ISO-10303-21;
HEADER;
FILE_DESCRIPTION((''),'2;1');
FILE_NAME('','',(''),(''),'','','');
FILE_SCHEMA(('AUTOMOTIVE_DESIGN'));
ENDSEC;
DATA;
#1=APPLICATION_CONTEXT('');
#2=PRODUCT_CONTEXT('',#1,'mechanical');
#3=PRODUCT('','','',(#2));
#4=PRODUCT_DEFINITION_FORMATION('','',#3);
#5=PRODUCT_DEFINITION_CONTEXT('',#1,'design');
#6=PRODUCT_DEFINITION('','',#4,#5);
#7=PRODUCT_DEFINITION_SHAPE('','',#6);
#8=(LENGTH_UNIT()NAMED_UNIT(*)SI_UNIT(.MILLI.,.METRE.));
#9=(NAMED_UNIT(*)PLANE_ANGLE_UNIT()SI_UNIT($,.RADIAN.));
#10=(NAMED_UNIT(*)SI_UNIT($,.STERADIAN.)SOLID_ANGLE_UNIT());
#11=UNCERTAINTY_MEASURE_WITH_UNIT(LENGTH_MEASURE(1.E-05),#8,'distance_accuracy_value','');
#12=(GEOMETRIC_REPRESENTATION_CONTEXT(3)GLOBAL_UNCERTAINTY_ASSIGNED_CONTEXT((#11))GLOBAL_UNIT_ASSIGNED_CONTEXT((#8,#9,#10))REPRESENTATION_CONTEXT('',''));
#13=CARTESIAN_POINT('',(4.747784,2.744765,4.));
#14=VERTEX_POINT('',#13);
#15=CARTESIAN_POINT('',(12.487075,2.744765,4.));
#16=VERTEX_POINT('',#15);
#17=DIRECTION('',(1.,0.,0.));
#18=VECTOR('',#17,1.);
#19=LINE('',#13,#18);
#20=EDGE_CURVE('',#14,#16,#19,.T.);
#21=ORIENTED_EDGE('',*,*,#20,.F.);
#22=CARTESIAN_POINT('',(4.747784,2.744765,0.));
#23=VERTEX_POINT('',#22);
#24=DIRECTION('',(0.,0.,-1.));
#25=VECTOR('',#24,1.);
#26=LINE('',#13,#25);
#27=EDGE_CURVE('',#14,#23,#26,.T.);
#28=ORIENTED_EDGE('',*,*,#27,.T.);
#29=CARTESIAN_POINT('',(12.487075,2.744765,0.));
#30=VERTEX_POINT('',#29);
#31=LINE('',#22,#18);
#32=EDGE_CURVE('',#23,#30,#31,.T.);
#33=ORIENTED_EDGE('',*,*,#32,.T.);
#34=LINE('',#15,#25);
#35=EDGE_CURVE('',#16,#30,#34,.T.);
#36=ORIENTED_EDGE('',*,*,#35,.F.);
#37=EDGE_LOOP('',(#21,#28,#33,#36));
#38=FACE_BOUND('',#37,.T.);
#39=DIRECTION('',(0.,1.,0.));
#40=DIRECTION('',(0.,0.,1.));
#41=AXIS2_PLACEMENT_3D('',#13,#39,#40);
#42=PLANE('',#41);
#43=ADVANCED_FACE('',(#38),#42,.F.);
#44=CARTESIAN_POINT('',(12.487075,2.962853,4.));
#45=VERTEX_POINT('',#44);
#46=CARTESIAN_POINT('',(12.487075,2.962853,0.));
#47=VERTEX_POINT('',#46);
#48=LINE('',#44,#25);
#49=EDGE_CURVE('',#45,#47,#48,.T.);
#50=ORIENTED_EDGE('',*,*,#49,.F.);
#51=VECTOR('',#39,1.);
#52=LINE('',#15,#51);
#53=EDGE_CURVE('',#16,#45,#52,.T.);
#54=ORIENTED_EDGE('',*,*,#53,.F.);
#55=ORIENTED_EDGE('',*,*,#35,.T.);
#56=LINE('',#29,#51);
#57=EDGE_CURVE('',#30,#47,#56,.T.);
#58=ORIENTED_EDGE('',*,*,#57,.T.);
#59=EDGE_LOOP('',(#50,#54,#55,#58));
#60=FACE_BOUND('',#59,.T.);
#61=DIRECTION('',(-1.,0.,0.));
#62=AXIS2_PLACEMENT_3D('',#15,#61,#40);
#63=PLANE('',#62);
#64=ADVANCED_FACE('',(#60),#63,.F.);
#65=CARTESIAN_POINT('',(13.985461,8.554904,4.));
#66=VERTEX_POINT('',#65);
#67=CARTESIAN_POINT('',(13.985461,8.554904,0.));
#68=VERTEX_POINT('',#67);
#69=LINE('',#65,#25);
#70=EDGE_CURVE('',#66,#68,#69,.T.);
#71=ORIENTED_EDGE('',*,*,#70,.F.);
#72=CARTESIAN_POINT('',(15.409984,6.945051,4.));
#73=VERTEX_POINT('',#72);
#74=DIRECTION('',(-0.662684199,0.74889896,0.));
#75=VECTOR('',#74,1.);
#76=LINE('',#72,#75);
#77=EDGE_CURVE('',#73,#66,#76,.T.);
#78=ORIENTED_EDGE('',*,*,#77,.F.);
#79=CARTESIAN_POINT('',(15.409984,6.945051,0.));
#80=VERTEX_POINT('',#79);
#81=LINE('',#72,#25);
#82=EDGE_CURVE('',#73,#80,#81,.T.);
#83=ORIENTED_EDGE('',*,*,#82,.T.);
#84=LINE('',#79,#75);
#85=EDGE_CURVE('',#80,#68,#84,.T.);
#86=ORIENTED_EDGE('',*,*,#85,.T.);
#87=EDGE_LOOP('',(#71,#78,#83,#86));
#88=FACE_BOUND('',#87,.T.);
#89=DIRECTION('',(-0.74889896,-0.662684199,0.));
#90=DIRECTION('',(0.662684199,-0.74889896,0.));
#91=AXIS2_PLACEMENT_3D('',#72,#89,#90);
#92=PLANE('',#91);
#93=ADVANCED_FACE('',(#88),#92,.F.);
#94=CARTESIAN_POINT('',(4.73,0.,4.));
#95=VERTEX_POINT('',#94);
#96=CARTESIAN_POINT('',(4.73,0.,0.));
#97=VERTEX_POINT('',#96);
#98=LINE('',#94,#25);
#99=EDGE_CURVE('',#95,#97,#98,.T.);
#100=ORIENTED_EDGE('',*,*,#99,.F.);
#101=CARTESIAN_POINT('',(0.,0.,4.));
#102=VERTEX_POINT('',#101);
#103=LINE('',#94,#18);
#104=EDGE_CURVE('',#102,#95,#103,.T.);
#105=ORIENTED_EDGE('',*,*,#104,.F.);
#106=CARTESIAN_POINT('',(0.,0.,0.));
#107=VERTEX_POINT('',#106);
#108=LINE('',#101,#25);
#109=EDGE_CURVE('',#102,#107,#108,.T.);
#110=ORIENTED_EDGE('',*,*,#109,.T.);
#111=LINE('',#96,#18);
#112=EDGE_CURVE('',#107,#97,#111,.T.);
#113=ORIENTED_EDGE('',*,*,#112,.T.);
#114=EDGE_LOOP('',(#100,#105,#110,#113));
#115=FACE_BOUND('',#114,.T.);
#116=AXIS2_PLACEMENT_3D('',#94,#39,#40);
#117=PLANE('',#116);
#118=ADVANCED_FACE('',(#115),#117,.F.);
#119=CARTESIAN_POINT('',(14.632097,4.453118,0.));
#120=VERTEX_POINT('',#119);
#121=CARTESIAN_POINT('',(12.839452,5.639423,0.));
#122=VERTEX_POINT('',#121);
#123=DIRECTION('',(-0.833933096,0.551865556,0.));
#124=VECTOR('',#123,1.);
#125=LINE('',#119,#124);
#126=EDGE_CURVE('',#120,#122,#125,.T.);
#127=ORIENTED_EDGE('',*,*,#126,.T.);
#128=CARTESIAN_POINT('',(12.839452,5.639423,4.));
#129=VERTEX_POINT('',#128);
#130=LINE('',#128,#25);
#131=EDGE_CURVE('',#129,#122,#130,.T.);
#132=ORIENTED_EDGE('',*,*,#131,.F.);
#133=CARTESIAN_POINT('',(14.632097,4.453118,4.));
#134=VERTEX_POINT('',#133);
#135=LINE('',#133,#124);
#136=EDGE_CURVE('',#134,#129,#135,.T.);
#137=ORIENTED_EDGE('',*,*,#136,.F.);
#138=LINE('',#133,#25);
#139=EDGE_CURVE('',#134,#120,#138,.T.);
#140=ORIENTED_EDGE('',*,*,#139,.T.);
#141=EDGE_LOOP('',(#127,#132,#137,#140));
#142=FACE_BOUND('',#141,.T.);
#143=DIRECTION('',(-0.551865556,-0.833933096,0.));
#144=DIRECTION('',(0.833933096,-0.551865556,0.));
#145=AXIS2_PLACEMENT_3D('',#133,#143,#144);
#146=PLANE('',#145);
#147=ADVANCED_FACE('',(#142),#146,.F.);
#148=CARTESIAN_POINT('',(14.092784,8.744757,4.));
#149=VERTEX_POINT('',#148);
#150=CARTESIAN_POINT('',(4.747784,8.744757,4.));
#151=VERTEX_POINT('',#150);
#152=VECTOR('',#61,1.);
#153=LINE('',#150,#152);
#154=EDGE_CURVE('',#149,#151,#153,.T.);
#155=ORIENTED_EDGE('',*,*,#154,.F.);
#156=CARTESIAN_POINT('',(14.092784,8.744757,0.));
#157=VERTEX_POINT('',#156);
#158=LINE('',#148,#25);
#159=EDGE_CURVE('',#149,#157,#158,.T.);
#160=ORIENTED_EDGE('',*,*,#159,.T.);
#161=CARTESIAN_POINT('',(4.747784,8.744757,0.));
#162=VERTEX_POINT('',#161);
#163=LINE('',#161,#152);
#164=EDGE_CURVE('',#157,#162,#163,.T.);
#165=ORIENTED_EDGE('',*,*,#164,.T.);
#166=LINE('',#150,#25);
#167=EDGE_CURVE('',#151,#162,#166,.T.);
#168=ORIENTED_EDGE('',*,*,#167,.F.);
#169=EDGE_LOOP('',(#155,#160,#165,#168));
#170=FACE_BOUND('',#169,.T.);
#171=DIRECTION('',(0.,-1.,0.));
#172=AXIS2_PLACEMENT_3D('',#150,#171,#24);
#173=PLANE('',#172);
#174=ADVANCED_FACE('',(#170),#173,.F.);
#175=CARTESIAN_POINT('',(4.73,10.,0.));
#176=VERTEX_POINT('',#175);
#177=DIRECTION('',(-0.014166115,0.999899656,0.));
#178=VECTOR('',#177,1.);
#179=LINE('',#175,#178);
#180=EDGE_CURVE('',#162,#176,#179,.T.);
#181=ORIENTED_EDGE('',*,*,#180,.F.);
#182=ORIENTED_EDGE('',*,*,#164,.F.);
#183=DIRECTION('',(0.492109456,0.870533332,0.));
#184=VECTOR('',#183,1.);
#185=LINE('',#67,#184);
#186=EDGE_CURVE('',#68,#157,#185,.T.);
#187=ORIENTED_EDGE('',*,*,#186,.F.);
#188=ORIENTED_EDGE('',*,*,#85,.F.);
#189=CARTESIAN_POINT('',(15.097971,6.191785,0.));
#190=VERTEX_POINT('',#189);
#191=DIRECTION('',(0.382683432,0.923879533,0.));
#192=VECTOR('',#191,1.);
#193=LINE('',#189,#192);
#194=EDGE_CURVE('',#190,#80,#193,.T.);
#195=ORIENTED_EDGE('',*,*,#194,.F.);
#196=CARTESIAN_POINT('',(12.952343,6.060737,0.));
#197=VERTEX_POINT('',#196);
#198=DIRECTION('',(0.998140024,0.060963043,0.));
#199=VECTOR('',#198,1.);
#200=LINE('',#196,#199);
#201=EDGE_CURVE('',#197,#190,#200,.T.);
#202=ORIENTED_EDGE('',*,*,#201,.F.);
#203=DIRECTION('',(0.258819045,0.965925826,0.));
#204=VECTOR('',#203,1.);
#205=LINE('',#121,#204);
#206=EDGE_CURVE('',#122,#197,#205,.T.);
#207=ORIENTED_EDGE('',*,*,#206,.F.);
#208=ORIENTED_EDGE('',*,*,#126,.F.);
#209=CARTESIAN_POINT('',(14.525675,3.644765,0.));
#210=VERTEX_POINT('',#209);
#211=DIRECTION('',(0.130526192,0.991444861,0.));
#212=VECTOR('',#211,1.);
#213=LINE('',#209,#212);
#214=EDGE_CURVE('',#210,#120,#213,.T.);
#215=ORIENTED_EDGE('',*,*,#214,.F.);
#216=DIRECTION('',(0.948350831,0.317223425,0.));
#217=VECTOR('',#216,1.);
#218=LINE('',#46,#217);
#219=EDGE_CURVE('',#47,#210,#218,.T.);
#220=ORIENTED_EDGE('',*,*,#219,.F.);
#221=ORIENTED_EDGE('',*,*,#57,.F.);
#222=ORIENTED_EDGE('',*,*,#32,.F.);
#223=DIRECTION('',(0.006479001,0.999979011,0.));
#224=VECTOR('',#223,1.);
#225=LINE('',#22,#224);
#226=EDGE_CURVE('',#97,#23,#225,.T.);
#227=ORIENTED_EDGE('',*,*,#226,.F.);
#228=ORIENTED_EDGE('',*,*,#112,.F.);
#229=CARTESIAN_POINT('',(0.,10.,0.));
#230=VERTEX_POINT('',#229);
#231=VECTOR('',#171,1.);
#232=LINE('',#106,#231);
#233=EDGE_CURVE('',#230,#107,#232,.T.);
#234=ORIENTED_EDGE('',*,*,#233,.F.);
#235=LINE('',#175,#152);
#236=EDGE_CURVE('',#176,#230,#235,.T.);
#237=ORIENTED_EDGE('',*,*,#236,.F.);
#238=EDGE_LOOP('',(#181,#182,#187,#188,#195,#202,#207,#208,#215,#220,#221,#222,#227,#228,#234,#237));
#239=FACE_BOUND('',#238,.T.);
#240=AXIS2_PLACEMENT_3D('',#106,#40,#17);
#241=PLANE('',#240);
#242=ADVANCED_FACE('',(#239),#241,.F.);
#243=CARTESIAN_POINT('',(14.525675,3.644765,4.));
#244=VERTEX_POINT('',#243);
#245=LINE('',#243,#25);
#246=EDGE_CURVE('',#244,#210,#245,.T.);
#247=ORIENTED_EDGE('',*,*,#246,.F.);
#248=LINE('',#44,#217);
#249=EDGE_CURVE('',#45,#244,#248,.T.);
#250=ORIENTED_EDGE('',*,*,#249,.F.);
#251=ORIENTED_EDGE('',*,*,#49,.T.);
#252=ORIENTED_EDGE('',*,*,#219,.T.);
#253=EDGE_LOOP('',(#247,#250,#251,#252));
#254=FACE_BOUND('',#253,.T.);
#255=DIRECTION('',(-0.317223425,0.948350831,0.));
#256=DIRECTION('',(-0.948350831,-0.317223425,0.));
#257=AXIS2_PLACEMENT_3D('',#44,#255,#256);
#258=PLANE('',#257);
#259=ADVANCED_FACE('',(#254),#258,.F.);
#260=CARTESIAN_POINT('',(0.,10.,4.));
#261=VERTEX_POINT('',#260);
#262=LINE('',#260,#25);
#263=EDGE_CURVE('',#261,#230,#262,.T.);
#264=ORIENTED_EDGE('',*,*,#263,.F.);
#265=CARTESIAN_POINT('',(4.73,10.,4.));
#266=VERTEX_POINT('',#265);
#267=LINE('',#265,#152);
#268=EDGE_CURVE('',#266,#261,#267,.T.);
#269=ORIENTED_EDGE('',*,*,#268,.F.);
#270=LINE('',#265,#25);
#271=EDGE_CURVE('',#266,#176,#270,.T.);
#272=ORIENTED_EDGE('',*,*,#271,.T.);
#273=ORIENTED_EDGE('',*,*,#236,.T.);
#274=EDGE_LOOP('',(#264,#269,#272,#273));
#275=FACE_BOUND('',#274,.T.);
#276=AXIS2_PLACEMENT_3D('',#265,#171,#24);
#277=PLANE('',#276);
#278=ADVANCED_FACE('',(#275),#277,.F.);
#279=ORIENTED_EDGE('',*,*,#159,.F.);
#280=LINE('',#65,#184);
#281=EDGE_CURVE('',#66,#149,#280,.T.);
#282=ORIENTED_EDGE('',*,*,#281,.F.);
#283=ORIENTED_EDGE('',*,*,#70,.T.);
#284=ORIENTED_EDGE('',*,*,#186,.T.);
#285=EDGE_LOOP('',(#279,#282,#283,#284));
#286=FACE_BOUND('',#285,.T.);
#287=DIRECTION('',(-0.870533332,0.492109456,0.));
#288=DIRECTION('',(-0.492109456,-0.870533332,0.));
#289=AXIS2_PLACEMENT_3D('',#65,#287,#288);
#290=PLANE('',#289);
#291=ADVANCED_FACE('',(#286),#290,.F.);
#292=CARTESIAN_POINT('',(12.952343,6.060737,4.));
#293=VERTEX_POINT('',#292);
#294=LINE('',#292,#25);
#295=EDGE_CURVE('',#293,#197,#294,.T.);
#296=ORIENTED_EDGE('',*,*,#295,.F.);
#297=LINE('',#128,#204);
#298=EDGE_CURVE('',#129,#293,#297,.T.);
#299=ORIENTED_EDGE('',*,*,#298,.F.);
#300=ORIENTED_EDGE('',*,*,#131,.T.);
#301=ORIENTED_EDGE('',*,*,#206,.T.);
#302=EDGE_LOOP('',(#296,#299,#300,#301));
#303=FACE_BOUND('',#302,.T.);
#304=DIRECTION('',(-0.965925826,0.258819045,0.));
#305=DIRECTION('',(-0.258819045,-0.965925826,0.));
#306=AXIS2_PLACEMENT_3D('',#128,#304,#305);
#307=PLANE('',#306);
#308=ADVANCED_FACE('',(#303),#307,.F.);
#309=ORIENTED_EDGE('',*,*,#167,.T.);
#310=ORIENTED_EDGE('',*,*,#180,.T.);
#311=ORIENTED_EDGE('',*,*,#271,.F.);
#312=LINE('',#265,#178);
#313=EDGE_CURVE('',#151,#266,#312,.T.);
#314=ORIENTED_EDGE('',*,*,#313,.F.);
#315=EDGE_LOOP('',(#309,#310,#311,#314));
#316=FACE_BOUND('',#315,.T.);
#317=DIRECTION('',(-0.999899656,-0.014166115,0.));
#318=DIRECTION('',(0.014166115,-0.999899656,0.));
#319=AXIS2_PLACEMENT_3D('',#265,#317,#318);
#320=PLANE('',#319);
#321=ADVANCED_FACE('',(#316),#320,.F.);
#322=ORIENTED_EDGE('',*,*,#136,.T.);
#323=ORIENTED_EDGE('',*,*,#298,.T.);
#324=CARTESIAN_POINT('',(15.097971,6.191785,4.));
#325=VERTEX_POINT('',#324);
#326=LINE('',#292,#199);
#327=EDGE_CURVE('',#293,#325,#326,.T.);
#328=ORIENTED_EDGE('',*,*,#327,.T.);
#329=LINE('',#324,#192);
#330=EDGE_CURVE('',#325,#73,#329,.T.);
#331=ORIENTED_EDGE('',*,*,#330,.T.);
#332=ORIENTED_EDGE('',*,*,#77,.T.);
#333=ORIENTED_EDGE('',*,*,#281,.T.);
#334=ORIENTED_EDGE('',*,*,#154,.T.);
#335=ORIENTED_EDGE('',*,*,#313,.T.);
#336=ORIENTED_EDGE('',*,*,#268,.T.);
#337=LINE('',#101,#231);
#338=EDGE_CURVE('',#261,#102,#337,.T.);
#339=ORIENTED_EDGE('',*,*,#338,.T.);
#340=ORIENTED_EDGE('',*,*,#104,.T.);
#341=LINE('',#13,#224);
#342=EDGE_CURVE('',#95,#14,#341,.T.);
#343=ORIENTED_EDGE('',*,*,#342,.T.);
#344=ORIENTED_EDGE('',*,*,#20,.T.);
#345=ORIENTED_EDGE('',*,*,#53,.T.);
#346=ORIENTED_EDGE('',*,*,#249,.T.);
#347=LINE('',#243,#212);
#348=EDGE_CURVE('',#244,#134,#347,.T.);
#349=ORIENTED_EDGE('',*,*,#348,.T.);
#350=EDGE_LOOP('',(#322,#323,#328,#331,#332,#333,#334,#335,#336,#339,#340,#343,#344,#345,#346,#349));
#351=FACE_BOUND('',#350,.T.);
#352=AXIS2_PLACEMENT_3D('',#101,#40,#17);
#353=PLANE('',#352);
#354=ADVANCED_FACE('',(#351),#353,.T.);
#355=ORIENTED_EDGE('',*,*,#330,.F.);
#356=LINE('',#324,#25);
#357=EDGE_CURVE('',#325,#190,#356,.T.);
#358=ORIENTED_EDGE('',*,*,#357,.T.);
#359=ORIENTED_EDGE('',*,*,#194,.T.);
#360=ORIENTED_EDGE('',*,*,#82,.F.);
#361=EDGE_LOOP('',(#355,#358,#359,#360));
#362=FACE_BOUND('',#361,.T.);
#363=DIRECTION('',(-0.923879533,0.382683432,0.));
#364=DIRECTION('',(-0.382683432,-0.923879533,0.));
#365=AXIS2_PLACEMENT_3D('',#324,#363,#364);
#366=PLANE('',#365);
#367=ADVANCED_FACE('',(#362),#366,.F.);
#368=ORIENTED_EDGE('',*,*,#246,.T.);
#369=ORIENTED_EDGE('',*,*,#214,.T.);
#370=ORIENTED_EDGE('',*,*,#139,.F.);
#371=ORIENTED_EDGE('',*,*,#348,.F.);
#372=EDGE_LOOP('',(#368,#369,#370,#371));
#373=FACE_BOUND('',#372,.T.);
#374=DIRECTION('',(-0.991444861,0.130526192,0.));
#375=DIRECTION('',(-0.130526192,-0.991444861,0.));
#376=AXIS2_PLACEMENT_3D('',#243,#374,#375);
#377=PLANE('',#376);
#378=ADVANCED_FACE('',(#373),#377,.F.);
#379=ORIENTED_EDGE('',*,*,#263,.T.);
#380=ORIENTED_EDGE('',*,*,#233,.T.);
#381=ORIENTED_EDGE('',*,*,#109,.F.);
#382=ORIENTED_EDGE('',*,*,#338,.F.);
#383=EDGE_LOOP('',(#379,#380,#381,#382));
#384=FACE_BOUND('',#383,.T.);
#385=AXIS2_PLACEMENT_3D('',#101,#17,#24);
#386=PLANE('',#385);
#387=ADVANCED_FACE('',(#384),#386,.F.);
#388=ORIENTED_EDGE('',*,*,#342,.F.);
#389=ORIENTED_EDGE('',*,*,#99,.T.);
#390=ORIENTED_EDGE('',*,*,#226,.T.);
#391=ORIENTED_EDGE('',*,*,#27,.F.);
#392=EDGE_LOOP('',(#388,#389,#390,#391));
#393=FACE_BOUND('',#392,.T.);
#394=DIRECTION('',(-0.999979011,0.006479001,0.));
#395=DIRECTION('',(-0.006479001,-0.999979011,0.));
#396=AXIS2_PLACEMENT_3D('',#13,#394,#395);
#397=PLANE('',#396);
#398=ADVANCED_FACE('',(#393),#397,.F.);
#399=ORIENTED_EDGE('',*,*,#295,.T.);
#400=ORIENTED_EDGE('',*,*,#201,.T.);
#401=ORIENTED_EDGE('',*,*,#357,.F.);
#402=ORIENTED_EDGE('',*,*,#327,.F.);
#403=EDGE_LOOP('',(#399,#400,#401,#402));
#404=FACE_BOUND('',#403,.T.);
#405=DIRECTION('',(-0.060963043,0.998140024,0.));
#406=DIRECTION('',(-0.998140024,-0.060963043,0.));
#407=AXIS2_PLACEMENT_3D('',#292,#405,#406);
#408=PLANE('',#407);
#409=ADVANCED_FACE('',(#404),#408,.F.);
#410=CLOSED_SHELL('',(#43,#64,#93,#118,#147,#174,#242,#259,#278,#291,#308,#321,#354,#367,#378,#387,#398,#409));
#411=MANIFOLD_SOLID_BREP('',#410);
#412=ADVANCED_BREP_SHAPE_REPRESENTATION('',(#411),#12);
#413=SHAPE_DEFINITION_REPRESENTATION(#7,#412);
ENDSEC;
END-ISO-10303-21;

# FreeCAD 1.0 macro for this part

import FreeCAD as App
import Part
import Sketcher
from FreeCAD import Vector
Q = App.Units.Quantity


def add_polygon(sketch, points):
    """Adds a closed chain of lines whose ends are joined by coincident constraints."""
    first, n = sketch.GeometryCount, len(points)
    for a, b in zip(points, points[1:] + points[:1]):
        sketch.addGeometry(Part.LineSegment(App.Vector(*a, 0), App.Vector(*b, 0)), False)
    for i in range(n):
        sketch.addConstraint(Sketcher.Constraint("Coincident", first + i, 2, first + (i + 1) % n, 1))

doc = App.newDocument("Part")
body = doc.addObject("PartDesign::Body", "Body")

# Sketch on XY plane
sketch1 = body.newObject("Sketcher::SketchObject", "Sketch")
sketch1.AttachmentSupport = (doc.getObject("XY_Plane"), [""])
sketch1.MapMode = "FlatFace"
add_polygon(sketch1, [(4.75, 2.74), (12.49, 2.74), (12.49, 2.96), (14.53, 3.64), (14.63, 4.45), (12.84, 5.64), (12.95, 6.06), (15.1, 6.19), (15.41, 6.95), (13.99, 8.55), (14.09, 8.74), (4.75, 8.74), (4.73, 10), (0, 10), (0, 0), (4.73, 0)])  # lines 0-15
sketch1.addConstraint(Sketcher.Constraint("Horizontal", 0))
sketch1.addConstraint(Sketcher.Constraint("Vertical", 1))
sketch1.addConstraint(Sketcher.Constraint("Horizontal", 10))
sketch1.addConstraint(Sketcher.Constraint("Horizontal", 12))
sketch1.addConstraint(Sketcher.Constraint("Vertical", 13))
sketch1.addConstraint(Sketcher.Constraint("Horizontal", 14))
sketch1.addConstraint(Sketcher.Constraint("Coincident", 13, 2, -1, 1))
sketch1.addConstraint(Sketcher.Constraint("Vertical", 11, 2, 14, 2))
sketch1.addConstraint(Sketcher.Constraint("Vertical", 10, 2, 15, 2))
sketch1.addConstraint(Sketcher.Constraint("Equal", 2, 4))
sketch1.addConstraint(Sketcher.Constraint("Equal", 4, 6))
sketch1.addConstraint(Sketcher.Constraint("Equal", 3, 7))
sketch1.addConstraint(Sketcher.Constraint("Equal", 6, 8))
sketch1.addConstraint(Sketcher.Constraint("DistanceY", 13, 2, 13, 1, 10.0))
sketch1.addConstraint(Sketcher.Constraint("Angle", 5, Q("75 deg")))
sketch1.addConstraint(Sketcher.Constraint("Angle", 3, Q("82.5 deg")))
sketch1.addConstraint(Sketcher.Constraint("Angle", 7, Q("67.5 deg")))
sketch1.addConstraint(Sketcher.Constraint("DistanceX", 12, 2, 12, 1, 4.73))
sketch1.addConstraint(Sketcher.Constraint("DistanceY", 0, 2, 2, 2, 0.9))
sketch1.addConstraint(Sketcher.Constraint("DistanceX", 10, 2, 10, 1, 9.345))
sketch1.addConstraint(Sketcher.Constraint("DistanceX", 0, 1, 0, 2, 7.739291))
sketch1.addConstraint(Sketcher.Constraint("DistanceY", 1, 1, 1, 2, 0.218088))
sketch1.addConstraint(Sketcher.Constraint("DistanceX", 1, 2, 2, 2, 2.0386))
sketch1.addConstraint(Sketcher.Constraint("DistanceX", 9, 2, 7, 2, 1.317201))
sketch1.addConstraint(Sketcher.Constraint("Distance", 3, 0.815329))
sketch1.addConstraint(Sketcher.Constraint("Distance", 9, 0.218088))
sketch1.addConstraint(Sketcher.Constraint("Distance", 11, 1.255369))
sketch1.addConstraint(Sketcher.Constraint("DistanceY", -1, 1, 3, 2, 4.453118))
sketch1.addConstraint(Sketcher.Constraint("DistanceX", -1, 1, 6, 2, 15.097971))
sketch1.addConstraint(Sketcher.Constraint("DistanceY", -1, 1, 7, 2, 6.945051))
sketch1.addConstraint(Sketcher.Constraint("DistanceY", 2, 2, 4, 2, 1.994659))
pad1 = body.newObject("PartDesign::Pad", "Pad")
pad1.Profile = sketch1
pad1.Length = 4

doc.recompute()
